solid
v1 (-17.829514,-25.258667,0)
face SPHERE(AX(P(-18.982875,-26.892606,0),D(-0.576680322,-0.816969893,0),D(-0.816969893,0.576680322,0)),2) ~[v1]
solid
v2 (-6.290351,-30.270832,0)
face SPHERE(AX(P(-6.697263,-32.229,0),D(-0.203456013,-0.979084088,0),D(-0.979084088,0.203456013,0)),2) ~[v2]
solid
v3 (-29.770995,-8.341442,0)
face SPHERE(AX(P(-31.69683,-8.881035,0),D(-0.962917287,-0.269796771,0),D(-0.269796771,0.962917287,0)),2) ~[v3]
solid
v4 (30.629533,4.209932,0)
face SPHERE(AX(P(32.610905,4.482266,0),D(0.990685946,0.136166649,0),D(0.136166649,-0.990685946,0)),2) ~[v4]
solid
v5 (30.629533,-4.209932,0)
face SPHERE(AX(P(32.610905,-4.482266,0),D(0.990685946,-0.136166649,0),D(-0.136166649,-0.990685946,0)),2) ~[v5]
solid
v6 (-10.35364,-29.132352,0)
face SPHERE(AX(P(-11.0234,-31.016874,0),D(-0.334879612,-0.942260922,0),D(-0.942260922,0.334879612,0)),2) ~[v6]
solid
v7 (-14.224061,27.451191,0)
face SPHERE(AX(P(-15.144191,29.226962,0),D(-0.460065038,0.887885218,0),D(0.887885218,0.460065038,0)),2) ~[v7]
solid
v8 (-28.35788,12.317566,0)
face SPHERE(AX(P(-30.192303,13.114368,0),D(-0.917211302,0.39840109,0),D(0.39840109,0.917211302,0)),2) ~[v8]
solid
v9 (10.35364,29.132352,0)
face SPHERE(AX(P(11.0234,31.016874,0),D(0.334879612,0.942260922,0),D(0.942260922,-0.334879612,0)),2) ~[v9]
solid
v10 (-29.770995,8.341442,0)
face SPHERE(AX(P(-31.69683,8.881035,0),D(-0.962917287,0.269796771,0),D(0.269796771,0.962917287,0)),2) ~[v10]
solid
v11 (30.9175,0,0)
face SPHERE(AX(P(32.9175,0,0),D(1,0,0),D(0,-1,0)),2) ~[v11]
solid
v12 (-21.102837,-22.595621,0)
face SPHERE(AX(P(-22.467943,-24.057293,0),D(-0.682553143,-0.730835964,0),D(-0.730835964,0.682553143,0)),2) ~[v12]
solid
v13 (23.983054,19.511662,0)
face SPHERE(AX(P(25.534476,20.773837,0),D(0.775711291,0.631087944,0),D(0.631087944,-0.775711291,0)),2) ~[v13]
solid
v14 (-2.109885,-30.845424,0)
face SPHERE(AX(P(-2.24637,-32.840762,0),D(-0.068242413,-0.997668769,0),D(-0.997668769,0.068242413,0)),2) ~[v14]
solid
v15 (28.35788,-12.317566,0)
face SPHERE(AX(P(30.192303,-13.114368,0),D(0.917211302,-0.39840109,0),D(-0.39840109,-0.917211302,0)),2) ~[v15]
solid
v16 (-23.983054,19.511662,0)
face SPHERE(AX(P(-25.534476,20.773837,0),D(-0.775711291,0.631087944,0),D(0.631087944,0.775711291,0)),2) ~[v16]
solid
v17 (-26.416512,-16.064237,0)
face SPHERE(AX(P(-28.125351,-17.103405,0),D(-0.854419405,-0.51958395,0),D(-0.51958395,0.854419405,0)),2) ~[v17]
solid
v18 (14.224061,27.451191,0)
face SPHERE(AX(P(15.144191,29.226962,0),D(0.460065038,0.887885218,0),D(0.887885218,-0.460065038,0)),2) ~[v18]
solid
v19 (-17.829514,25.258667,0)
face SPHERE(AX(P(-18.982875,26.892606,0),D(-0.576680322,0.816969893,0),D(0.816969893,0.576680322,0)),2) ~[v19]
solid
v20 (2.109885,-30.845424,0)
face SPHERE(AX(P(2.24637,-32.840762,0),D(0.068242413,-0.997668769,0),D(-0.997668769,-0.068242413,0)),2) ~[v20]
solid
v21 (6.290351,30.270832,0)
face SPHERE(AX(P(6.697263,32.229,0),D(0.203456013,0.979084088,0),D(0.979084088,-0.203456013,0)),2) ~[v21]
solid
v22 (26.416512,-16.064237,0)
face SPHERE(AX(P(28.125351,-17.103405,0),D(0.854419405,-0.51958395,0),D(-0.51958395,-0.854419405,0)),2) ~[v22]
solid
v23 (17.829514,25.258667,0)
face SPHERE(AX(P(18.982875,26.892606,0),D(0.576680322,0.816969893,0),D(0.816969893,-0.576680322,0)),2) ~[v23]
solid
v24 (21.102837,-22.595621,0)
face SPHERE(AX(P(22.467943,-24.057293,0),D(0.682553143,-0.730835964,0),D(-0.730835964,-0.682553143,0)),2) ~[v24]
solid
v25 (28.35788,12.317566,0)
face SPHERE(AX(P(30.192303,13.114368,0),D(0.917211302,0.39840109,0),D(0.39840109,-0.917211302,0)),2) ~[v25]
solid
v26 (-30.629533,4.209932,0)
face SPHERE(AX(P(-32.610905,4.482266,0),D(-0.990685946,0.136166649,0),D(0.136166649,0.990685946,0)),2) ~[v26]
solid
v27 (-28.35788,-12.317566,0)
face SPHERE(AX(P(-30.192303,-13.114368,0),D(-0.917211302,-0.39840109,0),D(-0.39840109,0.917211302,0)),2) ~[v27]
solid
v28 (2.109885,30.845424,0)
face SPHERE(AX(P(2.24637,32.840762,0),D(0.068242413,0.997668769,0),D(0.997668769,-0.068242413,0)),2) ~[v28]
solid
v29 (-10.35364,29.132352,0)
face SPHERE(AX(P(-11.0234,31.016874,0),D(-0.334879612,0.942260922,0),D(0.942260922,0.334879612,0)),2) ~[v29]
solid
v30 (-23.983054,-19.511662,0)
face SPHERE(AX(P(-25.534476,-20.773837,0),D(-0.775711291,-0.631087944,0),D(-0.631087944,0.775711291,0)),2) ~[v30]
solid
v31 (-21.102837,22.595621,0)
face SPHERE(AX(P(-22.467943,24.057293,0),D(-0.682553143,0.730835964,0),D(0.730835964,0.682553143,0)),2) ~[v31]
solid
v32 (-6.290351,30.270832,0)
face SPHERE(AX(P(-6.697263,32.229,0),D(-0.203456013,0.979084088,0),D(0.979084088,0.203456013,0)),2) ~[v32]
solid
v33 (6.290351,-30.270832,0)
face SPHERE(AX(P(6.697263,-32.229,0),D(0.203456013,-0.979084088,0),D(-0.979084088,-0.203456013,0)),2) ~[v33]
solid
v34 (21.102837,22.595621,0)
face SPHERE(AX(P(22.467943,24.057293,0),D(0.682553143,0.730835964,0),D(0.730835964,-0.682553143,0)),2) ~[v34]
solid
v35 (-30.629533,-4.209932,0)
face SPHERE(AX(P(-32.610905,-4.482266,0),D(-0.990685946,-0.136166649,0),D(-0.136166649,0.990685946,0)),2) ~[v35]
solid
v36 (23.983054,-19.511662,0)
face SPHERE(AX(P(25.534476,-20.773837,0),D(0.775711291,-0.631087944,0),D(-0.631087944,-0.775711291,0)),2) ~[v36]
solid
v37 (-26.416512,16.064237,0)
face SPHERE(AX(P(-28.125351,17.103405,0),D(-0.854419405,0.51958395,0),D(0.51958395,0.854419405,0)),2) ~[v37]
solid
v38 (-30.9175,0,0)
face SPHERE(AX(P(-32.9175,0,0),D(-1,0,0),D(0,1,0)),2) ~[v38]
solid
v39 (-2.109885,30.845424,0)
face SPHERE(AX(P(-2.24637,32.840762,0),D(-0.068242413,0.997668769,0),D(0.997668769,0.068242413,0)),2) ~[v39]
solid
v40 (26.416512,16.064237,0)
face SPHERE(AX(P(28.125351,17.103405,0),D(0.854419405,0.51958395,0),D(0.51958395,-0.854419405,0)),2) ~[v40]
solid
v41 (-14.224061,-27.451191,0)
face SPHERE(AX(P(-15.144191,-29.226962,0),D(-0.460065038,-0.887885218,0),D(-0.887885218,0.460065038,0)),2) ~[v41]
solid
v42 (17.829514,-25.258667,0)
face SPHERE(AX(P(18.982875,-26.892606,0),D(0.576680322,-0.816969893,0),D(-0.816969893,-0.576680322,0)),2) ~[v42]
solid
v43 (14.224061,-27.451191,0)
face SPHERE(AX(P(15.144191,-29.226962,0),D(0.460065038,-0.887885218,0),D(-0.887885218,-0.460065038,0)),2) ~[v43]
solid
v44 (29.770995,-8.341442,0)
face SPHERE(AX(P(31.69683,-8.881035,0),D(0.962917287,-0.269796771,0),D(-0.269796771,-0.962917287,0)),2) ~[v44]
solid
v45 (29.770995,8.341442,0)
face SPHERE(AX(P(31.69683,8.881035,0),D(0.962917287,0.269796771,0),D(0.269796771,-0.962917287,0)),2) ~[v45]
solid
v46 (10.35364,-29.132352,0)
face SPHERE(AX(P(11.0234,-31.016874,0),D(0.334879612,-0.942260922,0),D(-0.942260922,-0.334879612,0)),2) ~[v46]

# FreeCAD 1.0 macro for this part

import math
import FreeCAD as App
import Part
import Sketcher
from FreeCAD import Vector

doc = App.newDocument("Part")
body = doc.addObject("PartDesign::Body", "Body")
body.AllowCompound = True

# Sketch on XY plane
sketch1 = doc.addObject("Sketcher::SketchObject", "Sketch")
body.addObject(sketch1)
sketch1.AttachmentSupport = (doc.XY_Plane, [""])
sketch1.MapMode = "FlatFace"
sketch1.addGeometry([
    Part.ArcOfCircle(Part.Circle(Vector(-32.9175, 0, 0), Vector(0, 0, 1), 2), math.radians(0), math.radians(180)),
    Part.LineSegment(Vector(-34.9175, 0, 0), Vector(-30.9175, 0, 0)),
], False)
sketch1.addConstraint([
    Sketcher.Constraint("Coincident", 0, 1, 1, 2),
    Sketcher.Constraint("Coincident", 1, 1, 0, 2),
    Sketcher.Constraint("Horizontal", 1),
    Sketcher.Constraint("PointOnObject", 0, 3, -1),
    Sketcher.Constraint("PointOnObject", 0, 1, -1),
    Sketcher.Constraint("Radius", 0, 2.0),
    Sketcher.Constraint("DistanceX", 0, 3, -1, 1, 32.9175),
])
revolution = doc.addObject("PartDesign::Revolution", "Revolution")
body.addObject(revolution)
revolution.Profile = sketch1
revolution.ReferenceAxis = (sketch1, ["H_Axis"])
revolution.Angle = 360
doc.recompute()

polarpattern = doc.addObject("PartDesign::PolarPattern", "PolarPattern")
body.addObject(polarpattern)
polarpattern.Originals = [revolution]
polarpattern.Axis = (doc.Z_Axis, [""])
polarpattern.Angle = 360
polarpattern.Occurrences = 46
body.Tip = polarpattern

doc.recompute()
